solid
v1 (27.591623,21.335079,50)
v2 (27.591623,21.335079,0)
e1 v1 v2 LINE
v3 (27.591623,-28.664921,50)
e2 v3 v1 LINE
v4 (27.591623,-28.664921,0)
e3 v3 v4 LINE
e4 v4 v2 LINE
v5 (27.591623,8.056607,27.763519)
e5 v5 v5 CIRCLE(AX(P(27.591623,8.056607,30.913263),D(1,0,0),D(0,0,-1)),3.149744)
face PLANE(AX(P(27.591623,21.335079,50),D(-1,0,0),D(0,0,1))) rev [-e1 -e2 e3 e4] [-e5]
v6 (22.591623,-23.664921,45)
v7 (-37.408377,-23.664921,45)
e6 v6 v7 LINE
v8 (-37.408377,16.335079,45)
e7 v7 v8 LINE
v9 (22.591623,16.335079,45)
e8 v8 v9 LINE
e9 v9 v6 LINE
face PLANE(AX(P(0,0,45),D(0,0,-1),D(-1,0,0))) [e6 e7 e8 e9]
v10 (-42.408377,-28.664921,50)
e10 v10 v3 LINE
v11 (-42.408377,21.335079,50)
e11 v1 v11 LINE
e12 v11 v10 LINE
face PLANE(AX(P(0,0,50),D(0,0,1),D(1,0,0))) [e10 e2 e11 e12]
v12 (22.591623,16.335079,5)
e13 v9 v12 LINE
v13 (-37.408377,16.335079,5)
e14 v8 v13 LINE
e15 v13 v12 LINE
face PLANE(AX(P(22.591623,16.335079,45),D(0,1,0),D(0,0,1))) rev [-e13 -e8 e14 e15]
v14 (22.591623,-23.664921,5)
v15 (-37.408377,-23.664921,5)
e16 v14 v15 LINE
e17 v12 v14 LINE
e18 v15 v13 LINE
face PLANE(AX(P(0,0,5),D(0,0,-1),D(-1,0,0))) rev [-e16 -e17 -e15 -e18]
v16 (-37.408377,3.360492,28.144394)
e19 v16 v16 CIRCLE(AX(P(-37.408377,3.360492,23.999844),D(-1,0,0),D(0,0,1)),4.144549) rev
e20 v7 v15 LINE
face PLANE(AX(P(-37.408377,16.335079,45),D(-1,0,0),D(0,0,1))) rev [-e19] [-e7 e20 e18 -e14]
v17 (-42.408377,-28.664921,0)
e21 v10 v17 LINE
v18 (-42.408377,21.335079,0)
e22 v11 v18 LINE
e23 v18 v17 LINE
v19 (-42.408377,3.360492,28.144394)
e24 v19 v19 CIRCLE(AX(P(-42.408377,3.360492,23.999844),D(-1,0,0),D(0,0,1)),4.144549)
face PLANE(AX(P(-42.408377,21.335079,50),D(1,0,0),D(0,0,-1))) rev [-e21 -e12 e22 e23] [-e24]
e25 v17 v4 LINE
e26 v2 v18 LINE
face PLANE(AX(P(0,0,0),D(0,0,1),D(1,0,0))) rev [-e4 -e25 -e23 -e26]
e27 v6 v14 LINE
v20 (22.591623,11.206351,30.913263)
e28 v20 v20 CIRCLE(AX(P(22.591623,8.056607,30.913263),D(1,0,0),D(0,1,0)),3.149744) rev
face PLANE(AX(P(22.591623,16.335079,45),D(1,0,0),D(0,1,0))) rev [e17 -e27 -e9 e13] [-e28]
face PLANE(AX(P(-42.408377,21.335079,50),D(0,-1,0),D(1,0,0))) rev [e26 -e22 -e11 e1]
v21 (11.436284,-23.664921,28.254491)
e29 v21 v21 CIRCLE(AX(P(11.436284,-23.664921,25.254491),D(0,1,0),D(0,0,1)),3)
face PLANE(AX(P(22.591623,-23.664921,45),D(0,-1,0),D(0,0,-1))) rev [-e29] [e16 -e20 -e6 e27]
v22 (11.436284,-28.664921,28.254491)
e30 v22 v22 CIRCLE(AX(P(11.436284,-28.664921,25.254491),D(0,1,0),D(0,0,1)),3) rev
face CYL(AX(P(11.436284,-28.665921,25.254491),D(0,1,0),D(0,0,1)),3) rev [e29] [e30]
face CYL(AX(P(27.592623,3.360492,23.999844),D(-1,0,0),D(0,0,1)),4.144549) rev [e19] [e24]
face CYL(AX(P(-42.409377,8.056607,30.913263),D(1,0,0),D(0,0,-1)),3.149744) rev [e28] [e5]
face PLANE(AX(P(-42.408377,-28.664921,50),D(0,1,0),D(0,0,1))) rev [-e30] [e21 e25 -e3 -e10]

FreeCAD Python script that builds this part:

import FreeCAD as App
import Part
import Sketcher


def add_polygon(sketch, points):
    """Adds a closed chain of lines whose ends are joined by coincident constraints."""
    first, n = sketch.GeometryCount, len(points)
    for a, b in zip(points, points[1:] + points[:1]):
        sketch.addGeometry(Part.LineSegment(App.Vector(*a, 0), App.Vector(*b, 0)), False)
    for i in range(n):
        sketch.addConstraint(Sketcher.Constraint("Coincident", first + i, 2, first + (i + 1) % n, 1))

doc = App.newDocument("Part")
body = doc.addObject("PartDesign::Body", "Body")

# Sketch on XY plane
sketch1 = doc.addObject("Sketcher::SketchObject", "Sketch")
body.addObject(sketch1)
sketch1.AttachmentSupport = (doc.XY_Plane, [""])
sketch1.MapMode = "FlatFace"
add_polygon(sketch1, [(-42, 21), (-42, -29), (28, -29), (28, 21)])  # lines 0-3
sketch1.addConstraint([
    Sketcher.Constraint("Vertical", 0),
    Sketcher.Constraint("Horizontal", 1),
    Sketcher.Constraint("Vertical", 2),
    Sketcher.Constraint("Horizontal", 3),
    Sketcher.Constraint("DistanceX", 1, 1, 1, 2, 70.0),
    Sketcher.Constraint("DistanceY", 0, 2, 0, 1, 50.0),
    Sketcher.Constraint("DistanceY", 0, 2, -1, 1, 28.664921),
    Sketcher.Constraint("DistanceX", 0, 2, -1, 1, 42.408377),
])
pad1 = doc.addObject("PartDesign::Pad", "Pad")
body.addObject(pad1)
pad1.Profile = sketch1
pad1.Length = 50

# Sketch on XY plane
sketch2 = doc.addObject("Sketcher::SketchObject", "Sketch001")
body.addObject(sketch2)
sketch2.AttachmentSupport = (doc.XY_Plane, [""])
sketch2.MapMode = "FlatFace"
sketch2.AttachmentOffset = App.Placement(App.Vector(0, 0, 5), App.Rotation())
add_polygon(sketch2, [(23, 16), (23, -24), (-37, -24), (-37, 16)])  # lines 0-3
sketch2.addConstraint([
    Sketcher.Constraint("Vertical", 0),
    Sketcher.Constraint("Horizontal", 1),
    Sketcher.Constraint("Vertical", 2),
    Sketcher.Constraint("Horizontal", 3),
    Sketcher.Constraint("DistanceX", 1, 2, 1, 1, 60.0),
    Sketcher.Constraint("DistanceY", 0, 2, 0, 1, 40.0),
    Sketcher.Constraint("DistanceY", 0, 2, -1, 1, 23.664921),
    Sketcher.Constraint("DistanceX", -1, 1, 0, 2, 22.591623),
])
pocket1 = doc.addObject("PartDesign::Pocket", "Pocket")
body.addObject(pocket1)
pocket1.Profile = sketch2
pocket1.Length = 40
pocket1.Reversed = True

# Sketch on XZ plane
sketch3 = doc.addObject("Sketcher::SketchObject", "Sketch002")
body.addObject(sketch3)
sketch3.AttachmentSupport = (doc.XZ_Plane, [""])
sketch3.MapMode = "FlatFace"
sketch3.AttachmentOffset = App.Placement(App.Vector(0, 0, 23.664921), App.Rotation())
sketch3.addGeometry(Part.Circle(App.Vector(11.4, 25.3, 0), App.Vector(0, 0, 1), 3), False)
sketch3.addConstraint([
    Sketcher.Constraint("Diameter", 0, 6.0),
    Sketcher.Constraint("DistanceY", -1, 1, 0, 3, 25.254491),
    Sketcher.Constraint("DistanceX", -1, 1, 0, 3, 11.436284),
])
pocket2 = doc.addObject("PartDesign::Pocket", "Pocket001")
body.addObject(pocket2)
pocket2.Profile = sketch3
pocket2.Type = "UpToFirst"
pocket2.Reversed = True

# Sketch on YZ plane
sketch4 = doc.addObject("Sketcher::SketchObject", "Sketch003")
body.addObject(sketch4)
sketch4.AttachmentSupport = (doc.YZ_Plane, [""])
sketch4.MapMode = "FlatFace"
sketch4.AttachmentOffset = App.Placement(App.Vector(0, 0, 27.591623), App.Rotation())
sketch4.addGeometry(Part.Circle(App.Vector(8.1, 30.9, 0), App.Vector(0, 0, 1), 3.1), False)
sketch4.addConstraint([
    Sketcher.Constraint("Diameter", 0, 6.299488),
    Sketcher.Constraint("DistanceX", -1, 1, 0, 3, 8.056607),
    Sketcher.Constraint("DistanceY", -1, 1, 0, 3, 30.913263),
])
pocket3 = doc.addObject("PartDesign::Pocket", "Pocket002")
body.addObject(pocket3)
pocket3.Profile = sketch4
pocket3.Type = "UpToFirst"

# Sketch on YZ plane
sketch5 = doc.addObject("Sketcher::SketchObject", "Sketch004")
body.addObject(sketch5)
sketch5.AttachmentSupport = (doc.YZ_Plane, [""])
sketch5.MapMode = "FlatFace"
sketch5.AttachmentOffset = App.Placement(App.Vector(0, 0, -42.408377), App.Rotation())
sketch5.addGeometry(Part.Circle(App.Vector(3.4, 24, 0), App.Vector(0, 0, 1), 4.1), False)
sketch5.addConstraint([
    Sketcher.Constraint("Diameter", 0, 8.289099),
    Sketcher.Constraint("DistanceX", -1, 1, 0, 3, 3.360492),
    Sketcher.Constraint("DistanceY", -1, 1, 0, 3, 23.999844),
])
pocket4 = doc.addObject("PartDesign::Pocket", "Pocket003")
body.addObject(pocket4)
pocket4.Profile = sketch5
pocket4.Type = "UpToFirst"
pocket4.Reversed = True

doc.recompute()
